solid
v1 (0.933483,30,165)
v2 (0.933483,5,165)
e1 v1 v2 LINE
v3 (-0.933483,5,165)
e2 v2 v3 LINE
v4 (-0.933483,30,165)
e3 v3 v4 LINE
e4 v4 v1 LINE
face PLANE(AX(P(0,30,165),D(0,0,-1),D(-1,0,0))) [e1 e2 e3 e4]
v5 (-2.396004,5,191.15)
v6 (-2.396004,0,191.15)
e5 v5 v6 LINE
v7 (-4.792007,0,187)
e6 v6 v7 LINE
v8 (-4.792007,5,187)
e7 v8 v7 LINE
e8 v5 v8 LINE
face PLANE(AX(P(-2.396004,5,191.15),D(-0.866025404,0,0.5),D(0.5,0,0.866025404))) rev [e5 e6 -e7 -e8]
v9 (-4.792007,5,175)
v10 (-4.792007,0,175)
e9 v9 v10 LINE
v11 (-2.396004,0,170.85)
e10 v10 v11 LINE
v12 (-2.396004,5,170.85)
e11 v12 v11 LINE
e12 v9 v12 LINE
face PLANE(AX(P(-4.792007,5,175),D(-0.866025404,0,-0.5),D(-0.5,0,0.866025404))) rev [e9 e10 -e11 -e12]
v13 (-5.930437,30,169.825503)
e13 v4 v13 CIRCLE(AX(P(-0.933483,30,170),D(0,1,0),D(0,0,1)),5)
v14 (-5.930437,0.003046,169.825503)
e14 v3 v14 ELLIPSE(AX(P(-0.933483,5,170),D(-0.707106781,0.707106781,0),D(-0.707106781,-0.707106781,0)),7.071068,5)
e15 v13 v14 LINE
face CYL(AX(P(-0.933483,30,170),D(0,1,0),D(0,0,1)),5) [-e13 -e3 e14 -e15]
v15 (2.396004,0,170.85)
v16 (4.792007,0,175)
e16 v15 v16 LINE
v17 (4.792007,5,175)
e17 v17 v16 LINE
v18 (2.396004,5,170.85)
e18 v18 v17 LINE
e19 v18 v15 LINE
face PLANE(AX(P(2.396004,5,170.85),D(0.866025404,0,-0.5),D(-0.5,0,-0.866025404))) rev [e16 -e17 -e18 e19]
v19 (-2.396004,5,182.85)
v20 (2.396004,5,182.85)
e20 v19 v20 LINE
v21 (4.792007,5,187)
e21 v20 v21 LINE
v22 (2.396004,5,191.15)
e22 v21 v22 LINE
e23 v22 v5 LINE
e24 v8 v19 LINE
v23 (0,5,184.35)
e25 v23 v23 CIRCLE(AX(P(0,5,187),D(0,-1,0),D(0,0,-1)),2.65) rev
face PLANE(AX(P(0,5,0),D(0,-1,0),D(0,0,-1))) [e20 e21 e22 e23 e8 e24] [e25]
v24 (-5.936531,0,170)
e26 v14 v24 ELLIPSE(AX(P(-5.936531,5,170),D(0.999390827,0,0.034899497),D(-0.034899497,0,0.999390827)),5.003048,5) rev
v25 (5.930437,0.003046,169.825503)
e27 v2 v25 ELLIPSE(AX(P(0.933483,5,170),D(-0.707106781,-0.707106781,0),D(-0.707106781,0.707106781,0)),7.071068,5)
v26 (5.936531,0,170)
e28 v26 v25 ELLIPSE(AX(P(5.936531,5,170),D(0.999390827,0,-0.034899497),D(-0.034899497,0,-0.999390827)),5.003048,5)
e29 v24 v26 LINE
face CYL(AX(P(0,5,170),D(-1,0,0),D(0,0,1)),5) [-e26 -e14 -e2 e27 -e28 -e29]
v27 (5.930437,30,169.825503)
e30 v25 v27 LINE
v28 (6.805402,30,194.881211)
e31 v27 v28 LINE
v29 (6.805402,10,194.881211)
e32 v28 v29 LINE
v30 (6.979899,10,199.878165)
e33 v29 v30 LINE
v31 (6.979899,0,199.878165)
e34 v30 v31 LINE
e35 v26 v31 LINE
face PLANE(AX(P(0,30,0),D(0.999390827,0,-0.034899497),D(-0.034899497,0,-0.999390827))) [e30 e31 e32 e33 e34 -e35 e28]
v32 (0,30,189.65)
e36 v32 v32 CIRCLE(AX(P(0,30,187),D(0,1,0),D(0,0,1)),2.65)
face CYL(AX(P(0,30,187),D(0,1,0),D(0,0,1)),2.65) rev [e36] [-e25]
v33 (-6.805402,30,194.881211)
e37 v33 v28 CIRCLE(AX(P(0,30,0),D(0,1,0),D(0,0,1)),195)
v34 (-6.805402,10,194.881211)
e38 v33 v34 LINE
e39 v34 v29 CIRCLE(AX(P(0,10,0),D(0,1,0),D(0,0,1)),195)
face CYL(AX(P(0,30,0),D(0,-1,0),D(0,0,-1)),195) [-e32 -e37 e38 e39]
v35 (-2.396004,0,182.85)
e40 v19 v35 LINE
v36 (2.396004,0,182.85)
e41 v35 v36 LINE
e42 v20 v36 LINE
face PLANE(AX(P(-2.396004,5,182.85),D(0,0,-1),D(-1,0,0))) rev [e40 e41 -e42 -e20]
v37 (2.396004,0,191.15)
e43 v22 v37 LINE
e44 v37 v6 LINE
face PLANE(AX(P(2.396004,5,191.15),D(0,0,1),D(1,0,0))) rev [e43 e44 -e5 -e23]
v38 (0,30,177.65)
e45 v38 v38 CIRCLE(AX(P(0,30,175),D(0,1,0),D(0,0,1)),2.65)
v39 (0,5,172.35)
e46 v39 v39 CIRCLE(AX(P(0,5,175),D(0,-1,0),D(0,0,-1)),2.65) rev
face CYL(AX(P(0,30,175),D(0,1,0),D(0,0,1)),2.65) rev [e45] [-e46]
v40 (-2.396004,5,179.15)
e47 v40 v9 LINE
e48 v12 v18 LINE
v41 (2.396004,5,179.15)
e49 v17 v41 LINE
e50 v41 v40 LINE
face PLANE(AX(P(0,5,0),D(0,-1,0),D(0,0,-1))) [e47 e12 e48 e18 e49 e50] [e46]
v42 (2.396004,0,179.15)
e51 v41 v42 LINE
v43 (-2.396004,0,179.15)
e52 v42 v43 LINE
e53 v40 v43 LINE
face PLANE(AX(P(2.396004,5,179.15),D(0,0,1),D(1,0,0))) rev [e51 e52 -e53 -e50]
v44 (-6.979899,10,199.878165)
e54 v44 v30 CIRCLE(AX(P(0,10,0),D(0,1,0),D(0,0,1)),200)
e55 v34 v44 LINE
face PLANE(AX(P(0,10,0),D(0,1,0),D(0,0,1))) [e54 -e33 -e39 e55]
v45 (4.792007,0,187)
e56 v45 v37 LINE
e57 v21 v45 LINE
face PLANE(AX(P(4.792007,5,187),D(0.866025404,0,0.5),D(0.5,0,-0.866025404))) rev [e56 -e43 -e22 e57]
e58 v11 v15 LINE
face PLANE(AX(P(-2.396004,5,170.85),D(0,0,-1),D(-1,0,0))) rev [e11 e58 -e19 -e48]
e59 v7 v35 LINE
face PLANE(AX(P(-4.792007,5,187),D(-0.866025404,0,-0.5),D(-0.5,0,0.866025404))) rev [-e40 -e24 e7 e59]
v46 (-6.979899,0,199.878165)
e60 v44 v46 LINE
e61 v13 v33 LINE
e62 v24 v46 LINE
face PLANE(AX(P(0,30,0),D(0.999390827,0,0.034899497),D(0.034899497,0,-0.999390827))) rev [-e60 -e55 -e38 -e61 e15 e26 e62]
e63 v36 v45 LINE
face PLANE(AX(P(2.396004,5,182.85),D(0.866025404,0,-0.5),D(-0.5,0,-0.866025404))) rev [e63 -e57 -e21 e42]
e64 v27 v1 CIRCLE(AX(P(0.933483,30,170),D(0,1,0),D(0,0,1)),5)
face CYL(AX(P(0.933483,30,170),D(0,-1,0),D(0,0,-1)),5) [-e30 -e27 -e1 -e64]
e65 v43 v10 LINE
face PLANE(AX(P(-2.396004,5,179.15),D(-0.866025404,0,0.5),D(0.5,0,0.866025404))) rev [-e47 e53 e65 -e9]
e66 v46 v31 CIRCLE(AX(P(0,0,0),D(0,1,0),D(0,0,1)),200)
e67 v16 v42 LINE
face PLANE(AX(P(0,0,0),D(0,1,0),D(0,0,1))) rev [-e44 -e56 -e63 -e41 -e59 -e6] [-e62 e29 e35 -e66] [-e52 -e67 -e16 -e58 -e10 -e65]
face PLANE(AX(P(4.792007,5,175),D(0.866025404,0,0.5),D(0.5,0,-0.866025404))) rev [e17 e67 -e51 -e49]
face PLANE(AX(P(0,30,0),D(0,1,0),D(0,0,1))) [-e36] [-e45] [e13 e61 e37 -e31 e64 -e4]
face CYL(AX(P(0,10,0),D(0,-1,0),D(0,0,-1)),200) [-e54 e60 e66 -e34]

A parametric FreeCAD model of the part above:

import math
import FreeCAD as App
import Part
import Sketcher
from FreeCAD import Vector
Q = App.Units.Quantity


def edges_at(feature, points):
    """Names of the edges that pass closest to the given points."""
    edges = feature.Shape.Edges
    near = lambda p: min(range(len(edges)), key=lambda i: edges[i].distToShape(Part.Vertex(*p))[0])
    return sorted({f"Edge{near(p) + 1}" for p in points})

doc = App.newDocument("Part")
params = doc.addObject("Spreadsheet::Sheet", "Params")
for row, (alias, value) in enumerate([
    ("sketch1_radius", "195 mm"),
    ("pad1_length", "30 mm"),
    ("sketch2_radius", "195 mm"),
    ("sketch2_radius2", "200 mm"),
    ("pad2_length", "10 mm"),
    ("fillet_radius", "5 mm"),
    ("sketch3_diameter", "5.3 mm"),
    ("hole_diameter", "5.3 mm"),
    ("pocket1_length", "5 mm"),
], start=1):
    params.set(f"A{row}", alias)
    params.set(f"B{row}", "=" + value)
    params.setAlias(f"B{row}", alias)

body = doc.addObject("PartDesign::Body", "Body")

# Sketch on XZ plane
sketch1 = body.newObject("Sketcher::SketchObject", "Sketch")
sketch1.AttachmentSupport = (doc.getObject("XZ_Plane"), [""])
sketch1.MapMode = "FlatFace"
sketch1.addGeometry([
    Part.LineSegment(Vector(5.761927, 165, 0), Vector(-5.761927, 165, 0)),
    Part.LineSegment(Vector(-5.761927, 165, 0), Vector(-6.805402, 194.881211, 0)),
    Part.ArcOfCircle(Part.Circle(Vector(0, 0, 0), Vector(0, 0, 1), 195), math.radians(88), math.radians(92)),
    Part.LineSegment(Vector(6.805402, 194.881211, 0), Vector(5.761927, 165, 0)),
], False)
sketch1.addConstraint([
    Sketcher.Constraint("Coincident", 0, 2, 1, 1),
    Sketcher.Constraint("Coincident", 1, 2, 2, 2),
    Sketcher.Constraint("Coincident", 2, 1, 3, 1),
    Sketcher.Constraint("Coincident", 3, 2, 0, 1),
    Sketcher.Constraint("Horizontal", 0),
    Sketcher.Constraint("Coincident", 2, 3, -1, 1),
    Sketcher.Constraint("Horizontal", 1, 2, 2, 1),
    Sketcher.Constraint("Equal", 1, 3),
    Sketcher.Constraint("Radius", 2, Q("195 mm")),
    Sketcher.Constraint("Angle", 1, Q("92 deg")),
    Sketcher.Constraint("DistanceY", -1, 1, 0, 2, Q("165 mm")),
    Sketcher.Constraint("DistanceX", 1, 2, -1, 1, Q("6.805402 mm")),
])
sketch1.setExpression("Constraints[8]", "Params.sketch1_radius")
pad1 = body.newObject("PartDesign::Pad", "Pad")
pad1.Profile = sketch1
pad1.setExpression("Length", "Params.pad1_length")
pad1.Reversed = True

# Sketch on XZ plane
sketch2 = body.newObject("Sketcher::SketchObject", "Sketch001")
sketch2.AttachmentSupport = (doc.getObject("XZ_Plane"), [""])
sketch2.MapMode = "FlatFace"
sketch2.addGeometry([
    Part.ArcOfCircle(Part.Circle(Vector(0, 0, 0), Vector(0, 0, 1), 195), math.radians(88), math.radians(92)),
    Part.LineSegment(Vector(-6.805402, 194.881211, 0), Vector(-6.979899, 199.878165, 0)),
    Part.ArcOfCircle(Part.Circle(Vector(0, 0, 0), Vector(0, 0, 1), 200), math.radians(88), math.radians(92)),
    Part.LineSegment(Vector(6.979899, 199.878165, 0), Vector(6.805402, 194.881211, 0)),
], False)
sketch2.addConstraint([
    Sketcher.Constraint("Coincident", 0, 2, 1, 1),
    Sketcher.Constraint("Coincident", 1, 2, 2, 2),
    Sketcher.Constraint("Coincident", 2, 1, 3, 1),
    Sketcher.Constraint("Coincident", 3, 2, 0, 1),
    Sketcher.Constraint("Coincident", 0, 3, -1, 1),
    Sketcher.Constraint("Coincident", 2, 3, -1, 1),
    Sketcher.Constraint("Horizontal", 1, 2, 2, 1),
    Sketcher.Constraint("Horizontal", 0, 2, 3, 2),
    Sketcher.Constraint("Radius", 0, Q("195 mm")),
    Sketcher.Constraint("Radius", 2, Q("200 mm")),
    Sketcher.Constraint("Angle", 1, Q("92 deg")),
    Sketcher.Constraint("DistanceX", 0, 2, -1, 1, Q("6.805402 mm")),
])
sketch2.setExpression("Constraints[8]", "Params.sketch2_radius")
sketch2.setExpression("Constraints[9]", "Params.sketch2_radius2")
pad2 = body.newObject("PartDesign::Pad", "Pad001")
pad2.Profile = sketch2
pad2.setExpression("Length", "Params.pad2_length")
pad2.Reversed = True
doc.recompute()

fillet = body.newObject("PartDesign::Fillet", "Fillet")
fillet.Base = (pad2, edges_at(pad2, [(0, 0, 165), (-5.762, 15, 165), (5.762, 15, 165)]))
fillet.setExpression("Radius", "Params.fillet_radius")

# Sketch on XZ plane
sketch3 = body.newObject("Sketcher::SketchObject", "Sketch002")
sketch3.AttachmentSupport = (doc.getObject("XZ_Plane"), [""])
sketch3.MapMode = "FlatFace"
sketch3.AttachmentOffset = App.Placement(Vector(0, 0, -30), App.Rotation())
sketch3.addGeometry([
    Part.Circle(Vector(0, 187, 0), Vector(0, 0, 1), 2.65),
    Part.Circle(Vector(0, 175, 0), Vector(0, 0, 1), 2.65),
], False)
sketch3.addConstraint([
    Sketcher.Constraint("Equal", 0, 1),
    Sketcher.Constraint("PointOnObject", 0, 3, -2),
    Sketcher.Constraint("PointOnObject", 1, 3, -2),
    Sketcher.Constraint("Diameter", 0, Q("5.3 mm")),
    Sketcher.Constraint("DistanceY", -1, 1, 0, 3, Q("187 mm")),
    Sketcher.Constraint("DistanceY", -1, 1, 1, 3, Q("175 mm")),
])
sketch3.setExpression("Constraints[3]", "Params.sketch3_diameter")
doc.recompute()
hole = body.newObject("PartDesign::Hole", "Hole")
hole.Profile = sketch3
hole.ThreadType = "None"
hole.setExpression("Diameter", "Params.hole_diameter")
hole.DepthType = "ThroughAll"
hole.Reversed = True

# Sketch on XZ plane
sketch4 = body.newObject("Sketcher::SketchObject", "Sketch003")
sketch4.AttachmentSupport = (doc.getObject("XZ_Plane"), [""])
sketch4.MapMode = "FlatFace"
sketch4.addGeometry([
    Part.LineSegment(Vector(-4.792007, 175, 0), Vector(-2.396004, 170.85, 0)),  # 0
    Part.LineSegment(Vector(-2.396004, 170.85, 0), Vector(2.396004, 170.85, 0)),  # 1
    Part.LineSegment(Vector(2.396004, 170.85, 0), Vector(4.792007, 175, 0)),  # 2
    Part.LineSegment(Vector(4.792007, 175, 0), Vector(2.396004, 179.15, 0)),  # 3
    Part.LineSegment(Vector(2.396004, 179.15, 0), Vector(-2.396004, 179.15, 0)),  # 4
    Part.LineSegment(Vector(-2.396004, 179.15, 0), Vector(-4.792007, 175, 0)),  # 5
    Part.LineSegment(Vector(-4.792007, 187, 0), Vector(-2.396004, 182.85, 0)),  # 6
    Part.LineSegment(Vector(-2.396004, 182.85, 0), Vector(2.396004, 182.85, 0)),  # 7
    Part.LineSegment(Vector(2.396004, 182.85, 0), Vector(4.792007, 187, 0)),  # 8
    Part.LineSegment(Vector(4.792007, 187, 0), Vector(2.396004, 191.15, 0)),  # 9
    Part.LineSegment(Vector(2.396004, 191.15, 0), Vector(-2.396004, 191.15, 0)),  # 10
    Part.LineSegment(Vector(-2.396004, 191.15, 0), Vector(-4.792007, 187, 0)),  # 11
], False)
sketch4.addConstraint([
    Sketcher.Constraint("Coincident", 0, 2, 1, 1),
    Sketcher.Constraint("Coincident", 1, 2, 2, 1),
    Sketcher.Constraint("Coincident", 2, 2, 3, 1),
    Sketcher.Constraint("Coincident", 3, 2, 4, 1),
    Sketcher.Constraint("Coincident", 4, 2, 5, 1),
    Sketcher.Constraint("Coincident", 5, 2, 0, 1),
    Sketcher.Constraint("Coincident", 6, 2, 7, 1),
    Sketcher.Constraint("Coincident", 7, 2, 8, 1),
    Sketcher.Constraint("Coincident", 8, 2, 9, 1),
    Sketcher.Constraint("Coincident", 9, 2, 10, 1),
    Sketcher.Constraint("Coincident", 10, 2, 11, 1),
    Sketcher.Constraint("Coincident", 11, 2, 6, 1),
    Sketcher.Constraint("Horizontal", 1),
    Sketcher.Constraint("Horizontal", 4),
    Sketcher.Constraint("Horizontal", 7),
    Sketcher.Constraint("Horizontal", 10),
    Sketcher.Constraint("Symmetric", 2, 2, 5, 2, -2),
    Sketcher.Constraint("Symmetric", 8, 2, 11, 2, -2),
    Sketcher.Constraint("Parallel", 0, 3),
    Sketcher.Constraint("Parallel", 2, 5),
    Sketcher.Constraint("Parallel", 3, 6),
    Sketcher.Constraint("Parallel", 5, 8),
    Sketcher.Constraint("Parallel", 6, 9),
    Sketcher.Constraint("Parallel", 8, 11),
    Sketcher.Constraint("Vertical", 1, 2, 3, 2),
    Sketcher.Constraint("Vertical", 0, 2, 4, 2),
    Sketcher.Constraint("Vertical", 4, 2, 6, 2),
    Sketcher.Constraint("Vertical", 2, 2, 8, 2),
    Sketcher.Constraint("Vertical", 7, 2, 9, 2),
    Sketcher.Constraint("Angle", 0, Q("-60 deg")),
    Sketcher.Constraint("DistanceY", -1, 1, 2, 2, Q("175 mm")),
    Sketcher.Constraint("DistanceY", -1, 1, 8, 2, Q("187 mm")),
    Sketcher.Constraint("DistanceY", 1, 2, 3, 2, Q("8.3 mm")),
    Sketcher.Constraint("DistanceX", 1, 1, 1, 2, Q("4.792007 mm")),
])
pocket1 = body.newObject("PartDesign::Pocket", "Pocket")
pocket1.Profile = sketch4
pocket1.setExpression("Length", "Params.pocket1_length")

doc.recompute()
